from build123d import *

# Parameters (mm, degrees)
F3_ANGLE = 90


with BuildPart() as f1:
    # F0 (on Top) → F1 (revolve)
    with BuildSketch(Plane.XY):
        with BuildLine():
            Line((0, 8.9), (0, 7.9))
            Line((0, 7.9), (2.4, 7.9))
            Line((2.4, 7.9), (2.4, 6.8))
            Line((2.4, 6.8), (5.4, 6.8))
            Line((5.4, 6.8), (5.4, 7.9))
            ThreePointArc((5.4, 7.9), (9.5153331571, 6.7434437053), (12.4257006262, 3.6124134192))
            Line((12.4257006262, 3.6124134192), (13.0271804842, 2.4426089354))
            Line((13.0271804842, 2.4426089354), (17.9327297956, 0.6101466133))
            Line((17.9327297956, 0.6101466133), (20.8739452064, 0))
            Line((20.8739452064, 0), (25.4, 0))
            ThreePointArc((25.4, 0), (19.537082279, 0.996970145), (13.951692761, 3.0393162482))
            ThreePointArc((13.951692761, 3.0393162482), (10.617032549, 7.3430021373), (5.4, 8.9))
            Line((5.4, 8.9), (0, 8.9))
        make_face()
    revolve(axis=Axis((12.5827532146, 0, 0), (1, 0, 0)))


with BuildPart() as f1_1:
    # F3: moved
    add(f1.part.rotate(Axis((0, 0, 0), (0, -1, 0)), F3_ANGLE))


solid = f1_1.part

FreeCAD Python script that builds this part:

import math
import FreeCAD as App
import Part
import Sketcher
from FreeCAD import Vector
Q = App.Units.Quantity

doc = App.newDocument("Part")
body = doc.addObject("PartDesign::Body", "Body")

sketch1 = doc.addObject("Sketcher::SketchObject", "Sketch")
body.addObject(sketch1)
sketch1.AttachmentSupport = (doc.XY_Plane, [""])
sketch1.MapMode = "FlatFace"
sketch1.addGeometry(Part.LineSegment(Vector(0, 8.9, 0), Vector(0, 7.9, 0)), False)
sketch1.addGeometry(Part.LineSegment(Vector(0, 7.9, 0), Vector(2.4, 7.9, 0)), False)
sketch1.addGeometry(Part.LineSegment(Vector(2.4, 7.9, 0), Vector(2.4, 6.8, 0)), False)
sketch1.addGeometry(Part.LineSegment(Vector(2.4, 6.8, 0), Vector(5.4, 6.8, 0)), False)
sketch1.addGeometry(Part.LineSegment(Vector(5.4, 6.8, 0), Vector(5.4, 7.9, 0)), False)
sketch1.addGeometry(Part.ArcOfCircle(Part.Circle(Vector(5.4, 0, 0), Vector(0, 0, 1), 7.9), math.radians(27), math.radians(90)), False)
sketch1.addGeometry(Part.LineSegment(Vector(12.4, 3.6, 0), Vector(13, 2.4, 0)), False)
sketch1.addGeometry(Part.LineSegment(Vector(13, 2.4, 0), Vector(17.9, 0.6, 0)), False)
sketch1.addGeometry(Part.LineSegment(Vector(17.9, 0.6, 0), Vector(20.9, 0, 0)), False)
sketch1.addGeometry(Part.LineSegment(Vector(20.9, 0, 0), Vector(25.4, 0, 0)), False)
sketch1.addGeometry(Part.ArcOfCircle(Part.Circle(Vector(27.9, 32.6, 0), Vector(0, 0, 1), 32.7), math.radians(-115), math.radians(-94)), False)
sketch1.addGeometry(Part.ArcOfCircle(Part.Circle(Vector(5.6, 0, 0), Vector(0, 0, 1), 8.9), math.radians(20), math.radians(91)), False)
sketch1.addGeometry(Part.LineSegment(Vector(5.4, 8.9, 0), Vector(0, 8.9, 0)), False)
sketch1.addConstraint(Sketcher.Constraint("Coincident", 0, 2, 1, 1))
sketch1.addConstraint(Sketcher.Constraint("Coincident", 1, 2, 2, 1))
sketch1.addConstraint(Sketcher.Constraint("Coincident", 2, 2, 3, 1))
sketch1.addConstraint(Sketcher.Constraint("Coincident", 3, 2, 4, 1))
sketch1.addConstraint(Sketcher.Constraint("Coincident", 4, 2, 5, 2))
sketch1.addConstraint(Sketcher.Constraint("Tangent", 5, 1, 6, 1))
sketch1.addConstraint(Sketcher.Constraint("Coincident", 6, 2, 7, 1))
sketch1.addConstraint(Sketcher.Constraint("Coincident", 7, 2, 8, 1))
sketch1.addConstraint(Sketcher.Constraint("Coincident", 8, 2, 9, 1))
sketch1.addConstraint(Sketcher.Constraint("Coincident", 9, 2, 10, 2))
sketch1.addConstraint(Sketcher.Constraint("Coincident", 10, 1, 11, 1))
sketch1.addConstraint(Sketcher.Constraint("Coincident", 11, 2, 12, 1))
sketch1.addConstraint(Sketcher.Constraint("Coincident", 12, 2, 0, 1))
sketch1.addConstraint(Sketcher.Constraint("Vertical", 0))
sketch1.addConstraint(Sketcher.Constraint("Horizontal", 1))
sketch1.addConstraint(Sketcher.Constraint("Vertical", 2))
sketch1.addConstraint(Sketcher.Constraint("Horizontal", 3))
sketch1.addConstraint(Sketcher.Constraint("Vertical", 4))
sketch1.addConstraint(Sketcher.Constraint("Horizontal", 9))
sketch1.addConstraint(Sketcher.Constraint("Horizontal", 12))
sketch1.addConstraint(Sketcher.Constraint("PointOnObject", 5, 3, -1))
sketch1.addConstraint(Sketcher.Constraint("PointOnObject", 11, 3, -1))
sketch1.addConstraint(Sketcher.Constraint("PointOnObject", 0, 2, -2))
sketch1.addConstraint(Sketcher.Constraint("PointOnObject", 8, 2, -1))
sketch1.addConstraint(Sketcher.Constraint("Horizontal", 1, 2, 4, 2))
sketch1.addConstraint(Sketcher.Constraint("Vertical", 5, 3, 3, 2))
sketch1.addConstraint(Sketcher.Constraint("Vertical", 4, 2, 11, 2))
sketch1.addConstraint(Sketcher.Constraint("Radius", 5, Q("7.9 mm")))
sketch1.addConstraint(Sketcher.Constraint("DistanceX", 3, 1, 3, 2, Q("3 mm")))
sketch1.addConstraint(Sketcher.Constraint("DistanceY", 0, 2, 0, 1, Q("1 mm")))
sketch1.addConstraint(Sketcher.Constraint("DistanceX", 1, 1, 1, 2, Q("2.4 mm")))
sketch1.addConstraint(Sketcher.Constraint("DistanceY", 2, 2, 2, 1, Q("1.1 mm")))
sketch1.addConstraint(Sketcher.Constraint("DistanceX", -1, 1, 9, 2, Q("25.4 mm")))
sketch1.addConstraint(Sketcher.Constraint("DistanceY", -1, 1, 10, 3, Q("32.601999 mm")))
sketch1.addConstraint(Sketcher.Constraint("Radius", 10, Q("32.699836 mm")))
sketch1.addConstraint(Sketcher.Constraint("Radius", 11, Q("8.901916 mm")))
sketch1.addConstraint(Sketcher.Constraint("DistanceX", -1, 1, 5, 1, Q("12.425701 mm")))
sketch1.addConstraint(Sketcher.Constraint("Distance", 6, Q("1.315378 mm")))
sketch1.addConstraint(Sketcher.Constraint("DistanceX", 9, 1, 9, 2, Q("4.526055 mm")))
sketch1.addConstraint(Sketcher.Constraint("DistanceX", -1, 1, 7, 2, Q("17.93273 mm")))
sketch1.addConstraint(Sketcher.Constraint("DistanceY", 7, 2, 10, 1, Q("2.42917 mm")))
revolution = doc.addObject("PartDesign::Revolution", "Revolution")
body.addObject(revolution)
revolution.Profile = sketch1
revolution.ReferenceAxis = (sketch1, ["H_Axis"])
revolution.Angle = 360
body2 = doc.addObject("PartDesign::Body", "Body001")
doc.recompute()

body.Placement = App.Placement(Vector(0, 0, 0), App.Rotation(Vector(0, -1, 0), 90))
boolean = doc.addObject("PartDesign::Boolean", "Boolean")
body2.addObject(boolean)
boolean.Type = "Fuse"
boolean.addObjects([body])

doc.recompute()
